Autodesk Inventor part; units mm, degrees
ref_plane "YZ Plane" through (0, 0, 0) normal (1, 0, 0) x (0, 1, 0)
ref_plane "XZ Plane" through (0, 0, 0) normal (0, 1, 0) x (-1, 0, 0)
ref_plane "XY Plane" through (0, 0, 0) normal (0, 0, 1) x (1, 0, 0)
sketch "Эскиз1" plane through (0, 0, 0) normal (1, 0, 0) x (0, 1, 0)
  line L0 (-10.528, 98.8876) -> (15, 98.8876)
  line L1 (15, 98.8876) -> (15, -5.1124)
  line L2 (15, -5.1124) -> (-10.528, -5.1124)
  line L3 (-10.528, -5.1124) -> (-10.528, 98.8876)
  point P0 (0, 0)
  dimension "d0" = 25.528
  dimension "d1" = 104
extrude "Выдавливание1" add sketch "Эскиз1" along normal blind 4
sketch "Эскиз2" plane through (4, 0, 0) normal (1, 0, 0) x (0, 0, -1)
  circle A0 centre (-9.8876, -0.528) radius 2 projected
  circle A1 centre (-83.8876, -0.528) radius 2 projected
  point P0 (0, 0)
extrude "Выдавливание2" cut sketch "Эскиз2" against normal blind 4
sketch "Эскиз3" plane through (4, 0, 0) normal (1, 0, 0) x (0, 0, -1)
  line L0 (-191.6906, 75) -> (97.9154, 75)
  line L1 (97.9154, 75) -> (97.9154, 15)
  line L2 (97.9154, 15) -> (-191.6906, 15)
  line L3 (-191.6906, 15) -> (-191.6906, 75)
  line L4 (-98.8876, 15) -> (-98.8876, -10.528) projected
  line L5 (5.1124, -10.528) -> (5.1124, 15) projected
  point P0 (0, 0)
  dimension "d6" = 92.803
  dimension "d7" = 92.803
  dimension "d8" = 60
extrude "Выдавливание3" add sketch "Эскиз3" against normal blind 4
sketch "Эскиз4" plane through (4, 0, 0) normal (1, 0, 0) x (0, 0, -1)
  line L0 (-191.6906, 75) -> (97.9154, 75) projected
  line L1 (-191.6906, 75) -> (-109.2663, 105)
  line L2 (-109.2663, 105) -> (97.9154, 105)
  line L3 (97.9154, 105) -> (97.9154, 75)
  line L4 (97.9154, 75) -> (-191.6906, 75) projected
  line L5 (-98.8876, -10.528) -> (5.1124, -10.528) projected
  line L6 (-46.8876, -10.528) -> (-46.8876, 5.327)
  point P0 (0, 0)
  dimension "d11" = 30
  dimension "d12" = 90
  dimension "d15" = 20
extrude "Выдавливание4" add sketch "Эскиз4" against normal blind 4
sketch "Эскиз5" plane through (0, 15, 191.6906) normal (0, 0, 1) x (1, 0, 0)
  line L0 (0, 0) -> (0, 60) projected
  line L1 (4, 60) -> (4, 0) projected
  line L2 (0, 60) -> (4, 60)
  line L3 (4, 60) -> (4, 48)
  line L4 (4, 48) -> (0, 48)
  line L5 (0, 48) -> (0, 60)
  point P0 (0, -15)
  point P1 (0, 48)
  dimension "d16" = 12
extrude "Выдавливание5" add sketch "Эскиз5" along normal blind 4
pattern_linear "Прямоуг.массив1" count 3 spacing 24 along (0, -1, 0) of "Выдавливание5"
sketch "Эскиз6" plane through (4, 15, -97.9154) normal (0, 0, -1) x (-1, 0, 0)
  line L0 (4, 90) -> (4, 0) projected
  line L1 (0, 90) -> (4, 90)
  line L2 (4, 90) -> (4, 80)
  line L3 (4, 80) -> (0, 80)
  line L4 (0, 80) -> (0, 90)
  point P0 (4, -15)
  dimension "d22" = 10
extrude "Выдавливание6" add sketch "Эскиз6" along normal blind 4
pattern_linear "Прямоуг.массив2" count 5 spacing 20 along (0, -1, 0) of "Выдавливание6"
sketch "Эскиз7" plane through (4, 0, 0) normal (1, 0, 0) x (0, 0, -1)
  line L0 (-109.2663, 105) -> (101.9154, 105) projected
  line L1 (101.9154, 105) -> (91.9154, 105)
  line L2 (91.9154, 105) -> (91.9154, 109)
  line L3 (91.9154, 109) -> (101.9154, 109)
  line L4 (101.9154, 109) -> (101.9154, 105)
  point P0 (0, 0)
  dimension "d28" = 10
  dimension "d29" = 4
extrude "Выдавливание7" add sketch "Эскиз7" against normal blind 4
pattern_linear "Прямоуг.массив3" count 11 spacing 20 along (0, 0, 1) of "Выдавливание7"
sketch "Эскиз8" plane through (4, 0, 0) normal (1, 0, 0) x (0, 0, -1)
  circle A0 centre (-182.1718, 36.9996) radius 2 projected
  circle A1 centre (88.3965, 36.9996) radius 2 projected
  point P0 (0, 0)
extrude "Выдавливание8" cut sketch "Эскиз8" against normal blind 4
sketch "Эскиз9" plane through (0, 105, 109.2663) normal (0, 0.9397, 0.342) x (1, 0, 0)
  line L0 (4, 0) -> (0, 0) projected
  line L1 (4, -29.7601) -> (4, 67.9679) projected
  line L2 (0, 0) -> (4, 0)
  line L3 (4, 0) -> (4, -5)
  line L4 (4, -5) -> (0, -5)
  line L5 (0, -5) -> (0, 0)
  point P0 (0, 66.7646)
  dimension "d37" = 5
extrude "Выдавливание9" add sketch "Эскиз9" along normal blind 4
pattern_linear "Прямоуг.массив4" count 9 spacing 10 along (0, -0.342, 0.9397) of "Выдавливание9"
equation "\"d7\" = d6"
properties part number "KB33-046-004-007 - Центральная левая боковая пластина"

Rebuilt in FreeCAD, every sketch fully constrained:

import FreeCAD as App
import Part
import Sketcher
from FreeCAD import Vector
Q = App.Units.Quantity


def add_polygon(sketch, points):
    """Adds a closed chain of lines whose ends are joined by coincident constraints."""
    first, n = sketch.GeometryCount, len(points)
    for a, b in zip(points, points[1:] + points[:1]):
        sketch.addGeometry(Part.LineSegment(App.Vector(*a, 0), App.Vector(*b, 0)), False)
    for i in range(n):
        sketch.addConstraint(Sketcher.Constraint("Coincident", first + i, 2, first + (i + 1) % n, 1))

doc = App.newDocument("Part")
body = doc.addObject("PartDesign::Body", "Body")

# Sketch on YZ plane
sketch1 = doc.addObject("Sketcher::SketchObject", "Sketch")
body.addObject(sketch1)
sketch1.AttachmentSupport = (doc.YZ_Plane, [""])
sketch1.MapMode = "FlatFace"
add_polygon(sketch1, [(15, 99), (-11, 99), (-11, -5), (15, -5)])  # lines 0-3
sketch1.addConstraint(Sketcher.Constraint("Horizontal", 0))
sketch1.addConstraint(Sketcher.Constraint("Vertical", 1))
sketch1.addConstraint(Sketcher.Constraint("Horizontal", 2))
sketch1.addConstraint(Sketcher.Constraint("Vertical", 3))
sketch1.addConstraint(Sketcher.Constraint("DistanceY", 1, 2, 1, 1, 104.0))
sketch1.addConstraint(Sketcher.Constraint("DistanceX", 0, 2, 0, 1, 25.528))
sketch1.addConstraint(Sketcher.Constraint("DistanceX", -1, 1, 2, 2, 15.0))
sketch1.addConstraint(Sketcher.Constraint("DistanceY", -1, 1, 0, 2, 98.8876))
pad1 = doc.addObject("PartDesign::Pad", "Pad")
body.addObject(pad1)
pad1.Profile = sketch1
pad1.Length = 4

# Sketch on YZ plane
sketch2 = doc.addObject("Sketcher::SketchObject", "Sketch001")
body.addObject(sketch2)
sketch2.AttachmentSupport = (doc.YZ_Plane, [""])
sketch2.MapMode = "FlatFace"
sketch2.AttachmentOffset = App.Placement(Vector(0, 0, 4), App.Rotation())
sketch2.addGeometry(Part.Circle(Vector(-0.5, 9.9, 0), Vector(0, 0, 1), 2), False)
sketch2.addGeometry(Part.Circle(Vector(-0.5, 83.9, 0), Vector(0, 0, 1), 2), False)
sketch2.addConstraint(Sketcher.Constraint("Equal", 0, 1))
sketch2.addConstraint(Sketcher.Constraint("Vertical", 0, 3, 1, 3))
sketch2.addConstraint(Sketcher.Constraint("Diameter", 0, 4.0))
sketch2.addConstraint(Sketcher.Constraint("DistanceY", 0, 3, 1, 3, 74.0))
sketch2.addConstraint(Sketcher.Constraint("DistanceX", 0, 3, -1, 1, 0.528))
sketch2.addConstraint(Sketcher.Constraint("DistanceY", -1, 1, 0, 3, 9.8876))
pocket1 = doc.addObject("PartDesign::Pocket", "Pocket")
body.addObject(pocket1)
pocket1.Profile = sketch2
pocket1.Length = 4

# Sketch on YZ plane
sketch3 = doc.addObject("Sketcher::SketchObject", "Sketch002")
body.addObject(sketch3)
sketch3.AttachmentSupport = (doc.YZ_Plane, [""])
sketch3.MapMode = "FlatFace"
sketch3.AttachmentOffset = App.Placement(Vector(0, 0, 4), App.Rotation())
add_polygon(sketch3, [(75, -98), (75, 192), (15, 192), (15, -98)])  # lines 0-3
sketch3.addConstraint(Sketcher.Constraint("Vertical", 0))
sketch3.addConstraint(Sketcher.Constraint("Horizontal", 1))
sketch3.addConstraint(Sketcher.Constraint("Vertical", 2))
sketch3.addConstraint(Sketcher.Constraint("Horizontal", 3))
sketch3.addConstraint(Sketcher.Constraint("DistanceX", 1, 2, 1, 1, 60.0))
sketch3.addConstraint(Sketcher.Constraint("DistanceX", -1, 1, 0, 2, 75.0))
sketch3.addConstraint(Sketcher.Constraint("DistanceY", 0, 1, 0, 2, 289.606))
sketch3.addConstraint(Sketcher.Constraint("DistanceY", -1, 1, 0, 2, 191.6906))
pad2 = doc.addObject("PartDesign::Pad", "Pad001")
body.addObject(pad2)
pad2.Profile = sketch3
pad2.Length = 4
pad2.Reversed = True

# Sketch on YZ plane
sketch4 = doc.addObject("Sketcher::SketchObject", "Sketch003")
body.addObject(sketch4)
sketch4.AttachmentSupport = (doc.YZ_Plane, [""])
sketch4.MapMode = "FlatFace"
sketch4.AttachmentOffset = App.Placement(Vector(0, 0, 4), App.Rotation())
add_polygon(sketch4, [(105, 109), (75, 192), (75, -98), (105, -98)])  # lines 0-3
sketch4.addConstraint(Sketcher.Constraint("Vertical", 1))
sketch4.addConstraint(Sketcher.Constraint("Horizontal", 2))
sketch4.addConstraint(Sketcher.Constraint("Vertical", 3))
sketch4.addConstraint(Sketcher.Constraint("DistanceX", 2, 1, 2, 2, 30.0))
sketch4.addConstraint(Sketcher.Constraint("Angle", 0, Q("110 deg")))
sketch4.addConstraint(Sketcher.Constraint("DistanceX", -1, 1, 0, 2, 75.0))
sketch4.addConstraint(Sketcher.Constraint("DistanceY", 1, 2, 1, 1, 289.606))
sketch4.addConstraint(Sketcher.Constraint("DistanceY", -1, 1, 0, 2, 191.6906))
pad3 = doc.addObject("PartDesign::Pad", "Pad002")
body.addObject(pad3)
pad3.Profile = sketch4
pad3.Length = 4
pad3.Reversed = True

# Sketch on XY plane
sketch5 = doc.addObject("Sketcher::SketchObject", "Sketch004")
body.addObject(sketch5)
sketch5.AttachmentSupport = (doc.XY_Plane, [""])
sketch5.MapMode = "FlatFace"
sketch5.AttachmentOffset = App.Placement(Vector(0, 0, 191.6906), App.Rotation())
add_polygon(sketch5, [(0, 75), (0, 63), (4, 63), (4, 75)])  # lines 0-3
sketch5.addConstraint(Sketcher.Constraint("Vertical", 0))
sketch5.addConstraint(Sketcher.Constraint("Horizontal", 1))
sketch5.addConstraint(Sketcher.Constraint("Vertical", 2))
sketch5.addConstraint(Sketcher.Constraint("Horizontal", 3))
sketch5.addConstraint(Sketcher.Constraint("PointOnObject", 0, 2, -2))
sketch5.addConstraint(Sketcher.Constraint("DistanceY", 0, 2, 0, 1, 12.0))
sketch5.addConstraint(Sketcher.Constraint("DistanceX", 1, 1, 1, 2, 4.0))
sketch5.addConstraint(Sketcher.Constraint("DistanceY", -1, 1, 0, 2, 63.0))
pad4 = doc.addObject("PartDesign::Pad", "Pad003")
body.addObject(pad4)
pad4.Profile = sketch5
pad4.Length = 4
doc.recompute()

linearpattern = doc.addObject("PartDesign::LinearPattern", "LinearPattern")
body.addObject(linearpattern)
linearpattern.Originals = [pad4]
linearpattern.Direction = (doc.Y_Axis, [""])
linearpattern.Mode = "offset"
linearpattern.Offset = 24
linearpattern.Occurrences = 3
linearpattern.Reversed = True
body.Tip = linearpattern

# Sketch on XY plane
sketch6 = doc.addObject("Sketcher::SketchObject", "Sketch005")
body.addObject(sketch6)
sketch6.AttachmentSupport = (doc.XY_Plane, [""])
sketch6.MapMode = "FlatFace"
sketch6.AttachmentOffset = App.Placement(Vector(0, 0, -97.9154), App.Rotation())
add_polygon(sketch6, [(0, 95), (0, 105), (4, 105), (4, 95)])  # lines 0-3
sketch6.addConstraint(Sketcher.Constraint("Vertical", 0))
sketch6.addConstraint(Sketcher.Constraint("Horizontal", 1))
sketch6.addConstraint(Sketcher.Constraint("Vertical", 2))
sketch6.addConstraint(Sketcher.Constraint("Horizontal", 3))
sketch6.addConstraint(Sketcher.Constraint("PointOnObject", 0, 2, -2))
sketch6.addConstraint(Sketcher.Constraint("DistanceY", 0, 1, 0, 2, 10.0))
sketch6.addConstraint(Sketcher.Constraint("DistanceX", 1, 1, 1, 2, 4.0))
sketch6.addConstraint(Sketcher.Constraint("DistanceY", -1, 1, 0, 2, 105.0))
pad5 = doc.addObject("PartDesign::Pad", "Pad004")
body.addObject(pad5)
pad5.Profile = sketch6
pad5.Length = 4
pad5.Reversed = True
doc.recompute()

linearpattern2 = doc.addObject("PartDesign::LinearPattern", "LinearPattern001")
body.addObject(linearpattern2)
linearpattern2.Originals = [pad5]
linearpattern2.Direction = (doc.Y_Axis, [""])
linearpattern2.Mode = "offset"
linearpattern2.Offset = 20
linearpattern2.Occurrences = 5
linearpattern2.Reversed = True
body.Tip = linearpattern2

# Sketch on YZ plane
sketch7 = doc.addObject("Sketcher::SketchObject", "Sketch006")
body.addObject(sketch7)
sketch7.AttachmentSupport = (doc.YZ_Plane, [""])
sketch7.MapMode = "FlatFace"
sketch7.AttachmentOffset = App.Placement(Vector(0, 0, 4), App.Rotation())
add_polygon(sketch7, [(109, -91.9), (105, -91.9), (105, -101.9), (109, -101.9)])  # lines 0-3
sketch7.addConstraint(Sketcher.Constraint("Horizontal", 0))
sketch7.addConstraint(Sketcher.Constraint("Vertical", 1))
sketch7.addConstraint(Sketcher.Constraint("Horizontal", 2))
sketch7.addConstraint(Sketcher.Constraint("Vertical", 3))
sketch7.addConstraint(Sketcher.Constraint("DistanceX", 0, 2, 0, 1, 4.0))
sketch7.addConstraint(Sketcher.Constraint("DistanceY", 1, 2, 1, 1, 10.0))
sketch7.addConstraint(Sketcher.Constraint("DistanceX", -1, 1, 0, 2, 105.0))
sketch7.addConstraint(Sketcher.Constraint("DistanceY", 0, 2, -1, 1, 91.9154))
pad6 = doc.addObject("PartDesign::Pad", "Pad005")
body.addObject(pad6)
pad6.Profile = sketch7
pad6.Length = 4
pad6.Reversed = True
doc.recompute()

linearpattern3 = doc.addObject("PartDesign::LinearPattern", "LinearPattern002")
body.addObject(linearpattern3)
linearpattern3.Originals = [pad6]
linearpattern3.Direction = (doc.Z_Axis, [""])
linearpattern3.Mode = "offset"
linearpattern3.Offset = 20
linearpattern3.Occurrences = 11
body.Tip = linearpattern3

# Sketch on YZ plane
sketch8 = doc.addObject("Sketcher::SketchObject", "Sketch007")
body.addObject(sketch8)
sketch8.AttachmentSupport = (doc.YZ_Plane, [""])
sketch8.MapMode = "FlatFace"
sketch8.AttachmentOffset = App.Placement(Vector(0, 0, 4), App.Rotation())
sketch8.addGeometry(Part.Circle(Vector(37, 182.2, 0), Vector(0, 0, 1), 2), False)
sketch8.addGeometry(Part.Circle(Vector(37, -88.4, 0), Vector(0, 0, 1), 2), False)
sketch8.addConstraint(Sketcher.Constraint("Equal", 0, 1))
sketch8.addConstraint(Sketcher.Constraint("Vertical", 0, 3, 1, 3))
sketch8.addConstraint(Sketcher.Constraint("Diameter", 0, 4.0))
sketch8.addConstraint(Sketcher.Constraint("DistanceX", -1, 1, 0, 3, 36.9996))
sketch8.addConstraint(Sketcher.Constraint("DistanceY", -1, 1, 0, 3, 182.1718))
sketch8.addConstraint(Sketcher.Constraint("DistanceY", 1, 3, -1, 1, 88.3965))
pocket2 = doc.addObject("PartDesign::Pocket", "Pocket001")
body.addObject(pocket2)
pocket2.Profile = sketch8
pocket2.Length = 4

# Sketch on an angled plane
sketch9 = doc.addObject("Sketcher::SketchObject", "Sketch008")
body.addObject(sketch9)
sketch9.Placement = App.Placement(Vector(0, 105, 109.2663), App.Rotation(Vector(1, 0, 0), Vector(0, 0.342020143, -0.939692621), Vector(0, 0.939692621, 0.342020143), "ZXY"))
add_polygon(sketch9, [(4, -5), (4, 0), (0, 0), (0, -5)])  # lines 0-3
sketch9.addConstraint(Sketcher.Constraint("Vertical", 0))
sketch9.addConstraint(Sketcher.Constraint("Horizontal", 1))
sketch9.addConstraint(Sketcher.Constraint("Vertical", 2))
sketch9.addConstraint(Sketcher.Constraint("Horizontal", 3))
sketch9.addConstraint(Sketcher.Constraint("Coincident", 1, 2, -1, 1))
sketch9.addConstraint(Sketcher.Constraint("DistanceY", 0, 1, 0, 2, 5.0))
sketch9.addConstraint(Sketcher.Constraint("DistanceX", 1, 2, 1, 1, 4.0))
pad7 = doc.addObject("PartDesign::Pad", "Pad006")
body.addObject(pad7)
pad7.Profile = sketch9
pad7.Length = 4
doc.recompute()

datumline = doc.addObject("PartDesign::Line", "DatumLine")
body.addObject(datumline)
datumline.Placement = App.Placement(Vector(0, 0, 0), App.Rotation(Vector(0, 0, 1), Vector(0, -0.342020143, 0.939692621)))
linearpattern4 = doc.addObject("PartDesign::LinearPattern", "LinearPattern003")
body.addObject(linearpattern4)
linearpattern4.Originals = [pad7]
linearpattern4.Direction = (datumline, [""])
linearpattern4.Mode = "offset"
linearpattern4.Offset = 10
linearpattern4.Occurrences = 9
body.Tip = linearpattern4

doc.recompute()
